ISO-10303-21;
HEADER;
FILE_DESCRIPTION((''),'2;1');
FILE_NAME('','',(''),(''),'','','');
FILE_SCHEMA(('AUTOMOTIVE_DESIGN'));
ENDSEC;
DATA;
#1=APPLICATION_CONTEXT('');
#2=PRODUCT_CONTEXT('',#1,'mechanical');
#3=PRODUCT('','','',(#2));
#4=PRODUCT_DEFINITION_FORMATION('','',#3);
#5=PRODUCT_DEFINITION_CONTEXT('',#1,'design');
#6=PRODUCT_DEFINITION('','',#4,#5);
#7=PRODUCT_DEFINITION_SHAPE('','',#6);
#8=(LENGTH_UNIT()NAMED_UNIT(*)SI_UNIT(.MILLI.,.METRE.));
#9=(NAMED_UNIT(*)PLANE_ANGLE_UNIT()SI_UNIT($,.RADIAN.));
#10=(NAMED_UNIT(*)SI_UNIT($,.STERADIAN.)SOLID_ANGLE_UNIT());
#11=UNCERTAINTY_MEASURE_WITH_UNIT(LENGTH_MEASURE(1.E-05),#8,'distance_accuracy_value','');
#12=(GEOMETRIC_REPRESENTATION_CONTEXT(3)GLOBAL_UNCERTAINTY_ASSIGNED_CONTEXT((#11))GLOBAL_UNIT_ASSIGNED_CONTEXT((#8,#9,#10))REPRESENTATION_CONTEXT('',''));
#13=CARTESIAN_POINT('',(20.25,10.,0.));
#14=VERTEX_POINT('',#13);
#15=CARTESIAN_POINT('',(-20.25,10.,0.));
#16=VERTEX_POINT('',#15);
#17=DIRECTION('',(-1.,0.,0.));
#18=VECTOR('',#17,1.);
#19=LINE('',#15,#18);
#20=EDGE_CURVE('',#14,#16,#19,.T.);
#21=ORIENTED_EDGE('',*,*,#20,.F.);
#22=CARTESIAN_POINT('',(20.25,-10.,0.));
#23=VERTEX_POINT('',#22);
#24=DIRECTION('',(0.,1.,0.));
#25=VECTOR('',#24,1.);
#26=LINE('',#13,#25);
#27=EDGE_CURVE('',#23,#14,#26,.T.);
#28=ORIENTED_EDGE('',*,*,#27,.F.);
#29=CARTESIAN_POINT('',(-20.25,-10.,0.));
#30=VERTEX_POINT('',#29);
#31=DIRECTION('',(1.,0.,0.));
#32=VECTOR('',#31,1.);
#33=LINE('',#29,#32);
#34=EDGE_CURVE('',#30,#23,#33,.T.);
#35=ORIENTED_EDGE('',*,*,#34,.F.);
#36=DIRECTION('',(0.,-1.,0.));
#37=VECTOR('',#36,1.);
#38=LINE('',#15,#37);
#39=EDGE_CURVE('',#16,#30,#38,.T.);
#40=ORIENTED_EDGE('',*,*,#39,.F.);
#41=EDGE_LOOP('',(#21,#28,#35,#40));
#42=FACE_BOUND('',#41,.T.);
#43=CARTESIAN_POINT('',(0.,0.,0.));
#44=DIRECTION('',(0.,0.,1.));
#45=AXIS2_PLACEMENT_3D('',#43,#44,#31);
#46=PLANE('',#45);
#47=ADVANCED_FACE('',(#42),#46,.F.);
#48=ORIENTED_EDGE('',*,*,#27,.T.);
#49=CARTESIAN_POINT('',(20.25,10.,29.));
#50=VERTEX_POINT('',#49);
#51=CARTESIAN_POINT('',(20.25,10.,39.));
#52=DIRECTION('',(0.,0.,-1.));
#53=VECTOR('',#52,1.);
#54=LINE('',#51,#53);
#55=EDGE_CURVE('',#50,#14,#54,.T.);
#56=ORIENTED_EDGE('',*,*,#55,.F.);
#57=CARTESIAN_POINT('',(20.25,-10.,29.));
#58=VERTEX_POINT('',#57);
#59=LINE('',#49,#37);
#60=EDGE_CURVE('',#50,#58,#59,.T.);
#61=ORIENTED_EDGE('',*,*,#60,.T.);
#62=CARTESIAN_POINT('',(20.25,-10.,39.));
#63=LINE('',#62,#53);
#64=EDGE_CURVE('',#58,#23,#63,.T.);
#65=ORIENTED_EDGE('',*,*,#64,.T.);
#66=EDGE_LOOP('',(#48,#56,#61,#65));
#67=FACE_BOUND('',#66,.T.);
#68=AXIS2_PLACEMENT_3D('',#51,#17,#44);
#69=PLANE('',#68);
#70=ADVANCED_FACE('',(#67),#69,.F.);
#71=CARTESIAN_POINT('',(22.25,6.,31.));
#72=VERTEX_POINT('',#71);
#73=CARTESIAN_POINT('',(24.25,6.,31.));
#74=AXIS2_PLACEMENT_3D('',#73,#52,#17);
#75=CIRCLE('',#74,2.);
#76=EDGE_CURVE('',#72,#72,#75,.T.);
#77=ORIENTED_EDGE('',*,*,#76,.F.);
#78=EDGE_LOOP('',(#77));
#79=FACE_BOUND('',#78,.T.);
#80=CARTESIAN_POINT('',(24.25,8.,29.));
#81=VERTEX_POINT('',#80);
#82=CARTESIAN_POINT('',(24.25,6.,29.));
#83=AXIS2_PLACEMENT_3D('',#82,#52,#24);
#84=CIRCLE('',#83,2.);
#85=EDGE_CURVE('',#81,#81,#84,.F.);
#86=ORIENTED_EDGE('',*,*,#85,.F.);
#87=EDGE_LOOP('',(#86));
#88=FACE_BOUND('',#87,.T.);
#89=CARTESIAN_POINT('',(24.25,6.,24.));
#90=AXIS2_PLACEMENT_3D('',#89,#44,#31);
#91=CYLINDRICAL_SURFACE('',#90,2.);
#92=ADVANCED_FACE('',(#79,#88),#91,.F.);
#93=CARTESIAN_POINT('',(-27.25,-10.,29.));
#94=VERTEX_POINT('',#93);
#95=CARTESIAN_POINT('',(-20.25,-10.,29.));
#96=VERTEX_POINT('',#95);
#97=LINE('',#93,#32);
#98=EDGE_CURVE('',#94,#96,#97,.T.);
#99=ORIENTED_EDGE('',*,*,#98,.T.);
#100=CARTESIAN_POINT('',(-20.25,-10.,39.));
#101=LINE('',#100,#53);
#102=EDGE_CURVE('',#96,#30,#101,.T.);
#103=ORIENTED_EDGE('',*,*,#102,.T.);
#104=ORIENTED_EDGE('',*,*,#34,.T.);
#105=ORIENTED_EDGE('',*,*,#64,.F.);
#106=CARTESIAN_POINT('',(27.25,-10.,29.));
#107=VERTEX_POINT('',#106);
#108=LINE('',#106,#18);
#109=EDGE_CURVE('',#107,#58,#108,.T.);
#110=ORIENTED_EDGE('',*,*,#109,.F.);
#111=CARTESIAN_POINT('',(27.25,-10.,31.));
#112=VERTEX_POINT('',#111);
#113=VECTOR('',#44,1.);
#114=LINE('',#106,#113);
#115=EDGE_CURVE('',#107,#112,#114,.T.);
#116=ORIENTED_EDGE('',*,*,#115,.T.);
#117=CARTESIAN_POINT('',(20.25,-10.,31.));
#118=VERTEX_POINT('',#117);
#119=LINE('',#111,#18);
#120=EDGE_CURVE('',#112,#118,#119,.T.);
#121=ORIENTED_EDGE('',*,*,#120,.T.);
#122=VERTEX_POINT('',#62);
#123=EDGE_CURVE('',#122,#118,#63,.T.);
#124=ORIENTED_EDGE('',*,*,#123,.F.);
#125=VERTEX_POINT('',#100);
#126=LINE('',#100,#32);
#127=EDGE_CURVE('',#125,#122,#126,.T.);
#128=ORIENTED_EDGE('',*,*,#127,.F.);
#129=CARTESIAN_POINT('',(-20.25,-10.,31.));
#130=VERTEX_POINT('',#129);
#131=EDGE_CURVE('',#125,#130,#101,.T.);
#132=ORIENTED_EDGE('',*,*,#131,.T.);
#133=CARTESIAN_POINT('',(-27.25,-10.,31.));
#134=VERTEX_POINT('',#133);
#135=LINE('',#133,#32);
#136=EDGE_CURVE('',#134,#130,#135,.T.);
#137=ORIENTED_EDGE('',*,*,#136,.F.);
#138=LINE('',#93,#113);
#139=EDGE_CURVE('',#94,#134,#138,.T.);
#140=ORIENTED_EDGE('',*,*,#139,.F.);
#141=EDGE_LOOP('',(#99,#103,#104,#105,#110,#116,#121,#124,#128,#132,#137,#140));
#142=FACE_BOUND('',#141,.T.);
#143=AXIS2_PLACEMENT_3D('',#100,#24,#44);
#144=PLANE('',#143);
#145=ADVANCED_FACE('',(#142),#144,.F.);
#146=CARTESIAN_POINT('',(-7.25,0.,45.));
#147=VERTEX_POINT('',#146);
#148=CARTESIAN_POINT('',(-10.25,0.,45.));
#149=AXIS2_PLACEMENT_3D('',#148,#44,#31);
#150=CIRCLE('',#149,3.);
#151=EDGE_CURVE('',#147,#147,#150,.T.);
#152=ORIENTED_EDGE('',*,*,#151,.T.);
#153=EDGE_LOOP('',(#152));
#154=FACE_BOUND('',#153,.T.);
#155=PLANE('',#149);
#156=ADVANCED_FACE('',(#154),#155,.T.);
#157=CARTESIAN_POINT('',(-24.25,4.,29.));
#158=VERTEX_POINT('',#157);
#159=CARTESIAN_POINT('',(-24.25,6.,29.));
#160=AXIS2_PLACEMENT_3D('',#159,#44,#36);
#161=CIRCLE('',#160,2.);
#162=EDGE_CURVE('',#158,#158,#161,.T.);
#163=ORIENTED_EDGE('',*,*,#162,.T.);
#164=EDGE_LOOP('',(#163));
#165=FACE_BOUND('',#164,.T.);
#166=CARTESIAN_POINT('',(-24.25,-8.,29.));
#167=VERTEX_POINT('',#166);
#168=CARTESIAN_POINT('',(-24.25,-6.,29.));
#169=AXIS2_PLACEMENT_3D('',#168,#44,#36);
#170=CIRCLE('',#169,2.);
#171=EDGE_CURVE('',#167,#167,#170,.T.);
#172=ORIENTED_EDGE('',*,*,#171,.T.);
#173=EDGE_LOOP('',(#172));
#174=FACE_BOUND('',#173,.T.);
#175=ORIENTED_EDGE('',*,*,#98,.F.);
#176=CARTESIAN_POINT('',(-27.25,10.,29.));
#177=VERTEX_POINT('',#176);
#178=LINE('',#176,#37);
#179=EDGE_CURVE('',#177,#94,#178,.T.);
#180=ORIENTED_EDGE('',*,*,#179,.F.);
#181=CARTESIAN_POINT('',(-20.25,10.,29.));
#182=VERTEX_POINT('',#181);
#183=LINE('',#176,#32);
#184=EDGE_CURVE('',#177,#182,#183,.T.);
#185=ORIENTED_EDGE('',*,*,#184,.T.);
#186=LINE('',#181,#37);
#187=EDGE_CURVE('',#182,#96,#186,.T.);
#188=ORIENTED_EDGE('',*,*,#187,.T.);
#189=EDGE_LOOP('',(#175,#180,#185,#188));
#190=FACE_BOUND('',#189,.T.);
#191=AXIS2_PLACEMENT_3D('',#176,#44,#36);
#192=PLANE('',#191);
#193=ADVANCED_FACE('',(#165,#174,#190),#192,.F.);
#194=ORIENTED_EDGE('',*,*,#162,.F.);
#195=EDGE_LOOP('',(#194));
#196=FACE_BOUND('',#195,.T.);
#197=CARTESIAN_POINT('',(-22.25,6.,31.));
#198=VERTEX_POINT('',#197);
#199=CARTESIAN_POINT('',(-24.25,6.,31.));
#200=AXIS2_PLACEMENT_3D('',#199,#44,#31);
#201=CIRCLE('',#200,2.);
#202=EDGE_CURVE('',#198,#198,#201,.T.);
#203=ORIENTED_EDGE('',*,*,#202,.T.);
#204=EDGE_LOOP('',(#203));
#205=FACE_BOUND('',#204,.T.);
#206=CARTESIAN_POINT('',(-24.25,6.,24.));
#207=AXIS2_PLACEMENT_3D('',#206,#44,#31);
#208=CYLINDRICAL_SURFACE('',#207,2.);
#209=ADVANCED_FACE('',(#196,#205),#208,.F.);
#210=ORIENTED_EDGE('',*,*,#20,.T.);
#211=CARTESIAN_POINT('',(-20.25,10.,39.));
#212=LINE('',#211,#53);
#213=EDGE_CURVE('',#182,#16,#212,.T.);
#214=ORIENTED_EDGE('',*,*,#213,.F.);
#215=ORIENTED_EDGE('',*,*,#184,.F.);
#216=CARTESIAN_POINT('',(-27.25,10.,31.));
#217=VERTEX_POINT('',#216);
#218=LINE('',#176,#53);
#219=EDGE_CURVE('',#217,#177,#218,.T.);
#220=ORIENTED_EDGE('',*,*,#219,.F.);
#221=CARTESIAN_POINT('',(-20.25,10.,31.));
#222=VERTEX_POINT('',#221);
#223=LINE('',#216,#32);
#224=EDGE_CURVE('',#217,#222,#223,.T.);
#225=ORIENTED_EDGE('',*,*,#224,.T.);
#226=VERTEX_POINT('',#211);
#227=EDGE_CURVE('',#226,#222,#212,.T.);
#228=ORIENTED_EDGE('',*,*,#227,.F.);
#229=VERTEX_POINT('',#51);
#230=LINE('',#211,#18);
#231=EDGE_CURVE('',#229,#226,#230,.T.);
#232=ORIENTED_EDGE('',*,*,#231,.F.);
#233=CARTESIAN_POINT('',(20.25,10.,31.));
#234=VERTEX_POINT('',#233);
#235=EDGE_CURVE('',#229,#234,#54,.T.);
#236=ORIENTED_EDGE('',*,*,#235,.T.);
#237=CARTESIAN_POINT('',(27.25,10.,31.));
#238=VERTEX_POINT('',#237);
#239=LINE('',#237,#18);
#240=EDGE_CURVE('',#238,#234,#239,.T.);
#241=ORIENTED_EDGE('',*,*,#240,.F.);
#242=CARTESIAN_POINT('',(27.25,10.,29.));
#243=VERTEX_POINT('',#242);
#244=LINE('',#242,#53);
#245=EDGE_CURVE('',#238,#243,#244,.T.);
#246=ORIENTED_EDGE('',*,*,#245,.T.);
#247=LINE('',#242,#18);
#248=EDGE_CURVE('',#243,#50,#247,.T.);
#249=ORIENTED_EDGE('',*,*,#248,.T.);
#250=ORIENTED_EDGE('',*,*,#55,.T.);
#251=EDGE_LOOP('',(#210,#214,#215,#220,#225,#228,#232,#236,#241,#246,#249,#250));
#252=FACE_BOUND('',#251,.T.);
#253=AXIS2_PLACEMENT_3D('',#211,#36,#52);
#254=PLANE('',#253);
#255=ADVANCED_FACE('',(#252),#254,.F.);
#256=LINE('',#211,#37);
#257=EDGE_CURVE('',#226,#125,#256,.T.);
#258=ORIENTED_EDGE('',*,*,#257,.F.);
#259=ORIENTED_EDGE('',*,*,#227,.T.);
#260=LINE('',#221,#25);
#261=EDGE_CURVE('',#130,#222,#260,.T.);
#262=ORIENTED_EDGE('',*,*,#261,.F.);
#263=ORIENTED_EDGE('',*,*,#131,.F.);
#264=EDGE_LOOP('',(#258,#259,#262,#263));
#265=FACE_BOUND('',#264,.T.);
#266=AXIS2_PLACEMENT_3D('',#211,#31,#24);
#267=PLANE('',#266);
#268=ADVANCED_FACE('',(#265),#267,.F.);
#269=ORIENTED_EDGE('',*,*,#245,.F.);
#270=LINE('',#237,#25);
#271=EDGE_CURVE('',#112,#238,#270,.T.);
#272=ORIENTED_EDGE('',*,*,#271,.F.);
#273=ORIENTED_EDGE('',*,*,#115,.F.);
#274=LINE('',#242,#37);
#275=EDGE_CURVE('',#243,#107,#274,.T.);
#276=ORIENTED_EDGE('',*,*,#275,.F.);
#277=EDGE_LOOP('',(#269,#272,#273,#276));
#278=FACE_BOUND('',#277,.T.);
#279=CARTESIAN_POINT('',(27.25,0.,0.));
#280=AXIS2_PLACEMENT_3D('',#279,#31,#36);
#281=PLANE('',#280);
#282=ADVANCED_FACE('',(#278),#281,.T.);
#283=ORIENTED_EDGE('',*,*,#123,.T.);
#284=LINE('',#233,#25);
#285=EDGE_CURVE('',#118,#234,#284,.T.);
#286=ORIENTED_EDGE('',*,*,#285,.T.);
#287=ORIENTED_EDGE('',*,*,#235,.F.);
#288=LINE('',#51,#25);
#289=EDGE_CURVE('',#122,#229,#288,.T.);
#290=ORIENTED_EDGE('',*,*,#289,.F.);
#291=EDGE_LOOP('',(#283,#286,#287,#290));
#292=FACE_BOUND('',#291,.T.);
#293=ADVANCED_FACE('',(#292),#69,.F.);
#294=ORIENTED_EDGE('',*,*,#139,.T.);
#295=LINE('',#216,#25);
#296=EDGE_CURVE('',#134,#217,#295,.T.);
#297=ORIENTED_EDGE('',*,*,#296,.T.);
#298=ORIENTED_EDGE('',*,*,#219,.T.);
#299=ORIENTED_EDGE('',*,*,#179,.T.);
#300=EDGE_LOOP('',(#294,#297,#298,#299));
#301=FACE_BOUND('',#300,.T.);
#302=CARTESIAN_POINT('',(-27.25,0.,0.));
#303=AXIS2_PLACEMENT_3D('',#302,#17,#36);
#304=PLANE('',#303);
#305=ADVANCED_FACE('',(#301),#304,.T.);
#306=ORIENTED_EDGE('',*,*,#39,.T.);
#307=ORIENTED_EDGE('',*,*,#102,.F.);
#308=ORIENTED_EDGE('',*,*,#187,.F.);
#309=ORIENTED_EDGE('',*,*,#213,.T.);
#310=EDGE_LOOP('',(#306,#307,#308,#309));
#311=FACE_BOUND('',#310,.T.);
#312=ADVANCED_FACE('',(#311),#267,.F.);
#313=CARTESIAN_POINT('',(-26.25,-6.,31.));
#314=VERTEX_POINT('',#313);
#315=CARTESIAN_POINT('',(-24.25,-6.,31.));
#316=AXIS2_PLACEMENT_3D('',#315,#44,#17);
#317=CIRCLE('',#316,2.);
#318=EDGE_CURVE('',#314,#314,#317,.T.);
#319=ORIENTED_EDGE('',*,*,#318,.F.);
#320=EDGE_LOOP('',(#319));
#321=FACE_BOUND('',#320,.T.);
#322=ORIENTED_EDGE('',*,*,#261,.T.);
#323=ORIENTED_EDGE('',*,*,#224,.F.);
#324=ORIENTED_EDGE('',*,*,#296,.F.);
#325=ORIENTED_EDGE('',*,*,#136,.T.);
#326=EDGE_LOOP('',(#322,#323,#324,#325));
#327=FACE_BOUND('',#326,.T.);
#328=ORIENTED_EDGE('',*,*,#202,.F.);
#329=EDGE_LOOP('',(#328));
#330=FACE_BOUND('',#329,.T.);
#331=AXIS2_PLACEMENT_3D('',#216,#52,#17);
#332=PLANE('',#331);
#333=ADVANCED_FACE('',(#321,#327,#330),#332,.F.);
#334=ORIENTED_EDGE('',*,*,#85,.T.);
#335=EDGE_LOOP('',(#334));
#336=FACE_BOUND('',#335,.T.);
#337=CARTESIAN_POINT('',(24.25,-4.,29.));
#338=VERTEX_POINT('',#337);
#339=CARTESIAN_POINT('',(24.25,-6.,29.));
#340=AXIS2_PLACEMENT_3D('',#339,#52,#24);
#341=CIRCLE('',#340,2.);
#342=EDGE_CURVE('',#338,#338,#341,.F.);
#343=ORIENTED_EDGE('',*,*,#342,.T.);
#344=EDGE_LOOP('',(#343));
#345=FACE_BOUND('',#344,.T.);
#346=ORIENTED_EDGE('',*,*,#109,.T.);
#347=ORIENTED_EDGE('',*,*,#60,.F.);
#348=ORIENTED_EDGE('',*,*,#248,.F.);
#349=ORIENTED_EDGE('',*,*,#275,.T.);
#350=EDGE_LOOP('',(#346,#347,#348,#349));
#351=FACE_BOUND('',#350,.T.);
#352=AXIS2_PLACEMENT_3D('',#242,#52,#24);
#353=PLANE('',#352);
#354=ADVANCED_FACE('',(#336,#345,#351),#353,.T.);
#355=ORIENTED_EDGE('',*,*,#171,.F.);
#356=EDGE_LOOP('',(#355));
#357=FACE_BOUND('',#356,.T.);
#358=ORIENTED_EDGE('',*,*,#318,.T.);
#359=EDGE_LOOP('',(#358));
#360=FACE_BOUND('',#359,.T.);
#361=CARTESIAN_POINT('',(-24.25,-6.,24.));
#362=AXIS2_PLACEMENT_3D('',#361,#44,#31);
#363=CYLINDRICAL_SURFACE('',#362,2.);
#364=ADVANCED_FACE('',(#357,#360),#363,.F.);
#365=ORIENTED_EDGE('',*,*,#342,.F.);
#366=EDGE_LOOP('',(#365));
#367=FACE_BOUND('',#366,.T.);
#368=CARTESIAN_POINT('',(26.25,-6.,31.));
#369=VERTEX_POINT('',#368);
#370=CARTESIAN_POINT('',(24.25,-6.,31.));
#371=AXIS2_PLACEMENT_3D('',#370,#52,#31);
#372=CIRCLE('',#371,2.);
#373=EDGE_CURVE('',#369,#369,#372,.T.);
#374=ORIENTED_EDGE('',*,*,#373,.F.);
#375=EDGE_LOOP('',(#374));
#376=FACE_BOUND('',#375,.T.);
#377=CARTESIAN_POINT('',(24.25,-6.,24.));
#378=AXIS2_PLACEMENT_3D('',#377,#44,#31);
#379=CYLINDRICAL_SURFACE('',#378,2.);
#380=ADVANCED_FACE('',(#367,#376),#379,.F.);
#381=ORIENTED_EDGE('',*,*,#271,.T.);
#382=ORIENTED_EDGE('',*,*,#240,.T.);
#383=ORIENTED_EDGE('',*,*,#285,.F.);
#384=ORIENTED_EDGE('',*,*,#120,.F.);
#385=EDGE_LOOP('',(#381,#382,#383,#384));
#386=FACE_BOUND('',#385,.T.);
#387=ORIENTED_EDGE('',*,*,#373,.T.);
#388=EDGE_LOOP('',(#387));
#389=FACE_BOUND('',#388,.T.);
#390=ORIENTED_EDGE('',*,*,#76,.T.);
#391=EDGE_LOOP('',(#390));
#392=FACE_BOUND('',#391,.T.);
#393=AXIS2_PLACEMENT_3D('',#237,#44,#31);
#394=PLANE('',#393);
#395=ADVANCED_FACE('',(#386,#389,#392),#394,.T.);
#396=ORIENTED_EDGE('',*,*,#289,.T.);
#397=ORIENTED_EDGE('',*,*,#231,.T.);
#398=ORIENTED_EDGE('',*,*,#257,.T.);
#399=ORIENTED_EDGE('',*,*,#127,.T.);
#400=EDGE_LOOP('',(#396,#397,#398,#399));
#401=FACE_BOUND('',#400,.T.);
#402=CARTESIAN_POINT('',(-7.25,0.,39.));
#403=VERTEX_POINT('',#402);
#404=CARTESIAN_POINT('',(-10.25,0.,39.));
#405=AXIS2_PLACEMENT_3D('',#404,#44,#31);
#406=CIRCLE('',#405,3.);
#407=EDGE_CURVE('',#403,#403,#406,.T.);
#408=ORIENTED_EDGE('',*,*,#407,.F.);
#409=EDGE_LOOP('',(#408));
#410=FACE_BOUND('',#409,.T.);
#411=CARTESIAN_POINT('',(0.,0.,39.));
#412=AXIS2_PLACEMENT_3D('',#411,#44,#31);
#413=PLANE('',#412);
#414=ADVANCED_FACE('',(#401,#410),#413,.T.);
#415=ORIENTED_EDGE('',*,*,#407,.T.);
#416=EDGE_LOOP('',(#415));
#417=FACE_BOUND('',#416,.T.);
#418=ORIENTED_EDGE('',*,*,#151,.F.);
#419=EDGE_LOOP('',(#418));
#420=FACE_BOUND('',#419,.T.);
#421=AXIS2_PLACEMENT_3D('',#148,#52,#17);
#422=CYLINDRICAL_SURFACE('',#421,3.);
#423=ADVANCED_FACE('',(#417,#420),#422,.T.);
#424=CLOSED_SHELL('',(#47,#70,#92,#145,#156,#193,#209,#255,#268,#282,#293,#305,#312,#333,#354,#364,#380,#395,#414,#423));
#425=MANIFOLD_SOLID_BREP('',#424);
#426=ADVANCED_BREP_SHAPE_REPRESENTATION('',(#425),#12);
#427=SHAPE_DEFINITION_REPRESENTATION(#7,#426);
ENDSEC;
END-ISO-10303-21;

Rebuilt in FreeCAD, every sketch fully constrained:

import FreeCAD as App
import Part
import Sketcher
from FreeCAD import Vector

doc = App.newDocument("Part")
params = doc.addObject("Spreadsheet::Sheet", "Params")
for row, (alias, value) in enumerate([
    ("sketch1_height", "20 mm"),
    ("sketch1_width", "40.5 mm"),
    ("pad1_length", "39 mm"),
    ("sketch2_diameter", "6 mm"),
    ("pad2_length", "6 mm"),
    ("sketch3_width", "20 mm"),
    ("sketch3_height", "2 mm"),
    ("pad3_length", "7 mm"),
    ("sketch4_diameter", "4 mm"),
    ("pocket1_length", "7 mm"),
], start=1):
    params.set(f"A{row}", alias)
    params.set(f"B{row}", "=" + value)
    params.setAlias(f"B{row}", alias)

body = doc.addObject("PartDesign::Body", "Body")

# Sketch on XY plane
sketch1 = body.newObject("Sketcher::SketchObject", "Sketch")
sketch1.AttachmentSupport = (doc.getObject("XY_Plane"), [""])
sketch1.MapMode = "FlatFace"
sketch1.addGeometry([
    Part.LineSegment(Vector(-20.25, 10, 0), Vector(-20.25, -10, 0)),
    Part.LineSegment(Vector(-20.25, -10, 0), Vector(20.25, -10, 0)),
    Part.LineSegment(Vector(20.25, -10, 0), Vector(20.25, 10, 0)),
    Part.LineSegment(Vector(20.25, 10, 0), Vector(-20.25, 10, 0)),
], False)
sketch1.addConstraint([
    Sketcher.Constraint("Coincident", 0, 2, 1, 1),
    Sketcher.Constraint("Coincident", 1, 2, 2, 1),
    Sketcher.Constraint("Coincident", 2, 2, 3, 1),
    Sketcher.Constraint("Coincident", 3, 2, 0, 1),
    Sketcher.Constraint("Vertical", 0),
    Sketcher.Constraint("Horizontal", 1),
    Sketcher.Constraint("Vertical", 2),
    Sketcher.Constraint("Horizontal", 3),
    Sketcher.Constraint("Symmetric", 0, 2, 2, 2, -1, 1),
    Sketcher.Constraint("DistanceY", 0, 2, 0, 1, 20.0),
    Sketcher.Constraint("DistanceX", 1, 1, 1, 2, 40.5),
])
sketch1.setExpression("Constraints[9]", "Params.sketch1_height")
sketch1.setExpression("Constraints[10]", "Params.sketch1_width")
pad1 = body.newObject("PartDesign::Pad", "Pad")
pad1.Profile = sketch1
pad1.setExpression("Length", "Params.pad1_length")

# Sketch on XY plane
sketch2 = body.newObject("Sketcher::SketchObject", "Sketch001")
sketch2.AttachmentSupport = (doc.getObject("XY_Plane"), [""])
sketch2.MapMode = "FlatFace"
sketch2.AttachmentOffset = App.Placement(Vector(0, 0, 39), App.Rotation())
sketch2.addGeometry(Part.Circle(Vector(-10.25, 0, 0), Vector(0, 0, 1), 3), False)
sketch2.addConstraint([
    Sketcher.Constraint("PointOnObject", 0, 3, -1),
    Sketcher.Constraint("Diameter", 0, 6.0),
    Sketcher.Constraint("DistanceX", 0, 3, -1, 1, 10.25),
])
sketch2.setExpression("Constraints[1]", "Params.sketch2_diameter")
pad2 = body.newObject("PartDesign::Pad", "Pad001")
pad2.Profile = sketch2
pad2.setExpression("Length", "Params.pad2_length")

# Sketch on YZ plane
sketch3 = body.newObject("Sketcher::SketchObject", "Sketch002")
sketch3.AttachmentSupport = (doc.getObject("YZ_Plane"), [""])
sketch3.MapMode = "FlatFace"
sketch3.AttachmentOffset = App.Placement(Vector(0, 0, -20.25), App.Rotation())
sketch3.addGeometry([
    Part.LineSegment(Vector(10, 29, 0), Vector(-10, 29, 0)),
    Part.LineSegment(Vector(-10, 29, 0), Vector(-10, 31, 0)),
    Part.LineSegment(Vector(-10, 31, 0), Vector(10, 31, 0)),
    Part.LineSegment(Vector(10, 31, 0), Vector(10, 29, 0)),
], False)
sketch3.addConstraint([
    Sketcher.Constraint("Coincident", 0, 2, 1, 1),
    Sketcher.Constraint("Coincident", 1, 2, 2, 1),
    Sketcher.Constraint("Coincident", 2, 2, 3, 1),
    Sketcher.Constraint("Coincident", 3, 2, 0, 1),
    Sketcher.Constraint("Horizontal", 0),
    Sketcher.Constraint("Vertical", 1),
    Sketcher.Constraint("Horizontal", 2),
    Sketcher.Constraint("Vertical", 3),
    Sketcher.Constraint("DistanceX", 0, 2, 0, 1, 20.0),
    Sketcher.Constraint("DistanceY", 1, 1, 1, 2, 2.0),
    Sketcher.Constraint("DistanceX", 0, 2, -1, 1, 10.0),
    Sketcher.Constraint("DistanceY", -1, 1, 0, 2, 29.0),
])
sketch3.setExpression("Constraints[8]", "Params.sketch3_width")
sketch3.setExpression("Constraints[9]", "Params.sketch3_height")
pad3 = body.newObject("PartDesign::Pad", "Pad002")
pad3.Profile = sketch3
pad3.setExpression("Length", "Params.pad3_length")
pad3.Reversed = True

# Sketch on XY plane
sketch4 = body.newObject("Sketcher::SketchObject", "Sketch003")
sketch4.AttachmentSupport = (doc.getObject("XY_Plane"), [""])
sketch4.MapMode = "FlatFace"
sketch4.AttachmentOffset = App.Placement(Vector(0, 0, 31), App.Rotation())
sketch4.addGeometry([
    Part.Circle(Vector(-24.25, 6, 0), Vector(0, 0, 1), 2),
    Part.Circle(Vector(-24.25, -6, 0), Vector(0, 0, 1), 2),
], False)
sketch4.addConstraint([
    Sketcher.Constraint("Equal", 0, 1),
    Sketcher.Constraint("Symmetric", 0, 3, 1, 3, -1),
    Sketcher.Constraint("Diameter", 0, 4.0),
    Sketcher.Constraint("DistanceY", -1, 1, 0, 3, 6.0),
    Sketcher.Constraint("DistanceX", 0, 3, -1, 1, 24.25),
])
sketch4.setExpression("Constraints[2]", "Params.sketch4_diameter")
pocket1 = body.newObject("PartDesign::Pocket", "Pocket")
pocket1.Profile = sketch4
pocket1.setExpression("Length", "Params.pocket1_length")
doc.recompute()

mirrored = body.newObject("PartDesign::Mirrored", "Mirrored")
mirrored.Originals = [pad3, pocket1]
mirrored.MirrorPlane = (doc.getObject("YZ_Plane"), [""])
body.Tip = mirrored

doc.recompute()
